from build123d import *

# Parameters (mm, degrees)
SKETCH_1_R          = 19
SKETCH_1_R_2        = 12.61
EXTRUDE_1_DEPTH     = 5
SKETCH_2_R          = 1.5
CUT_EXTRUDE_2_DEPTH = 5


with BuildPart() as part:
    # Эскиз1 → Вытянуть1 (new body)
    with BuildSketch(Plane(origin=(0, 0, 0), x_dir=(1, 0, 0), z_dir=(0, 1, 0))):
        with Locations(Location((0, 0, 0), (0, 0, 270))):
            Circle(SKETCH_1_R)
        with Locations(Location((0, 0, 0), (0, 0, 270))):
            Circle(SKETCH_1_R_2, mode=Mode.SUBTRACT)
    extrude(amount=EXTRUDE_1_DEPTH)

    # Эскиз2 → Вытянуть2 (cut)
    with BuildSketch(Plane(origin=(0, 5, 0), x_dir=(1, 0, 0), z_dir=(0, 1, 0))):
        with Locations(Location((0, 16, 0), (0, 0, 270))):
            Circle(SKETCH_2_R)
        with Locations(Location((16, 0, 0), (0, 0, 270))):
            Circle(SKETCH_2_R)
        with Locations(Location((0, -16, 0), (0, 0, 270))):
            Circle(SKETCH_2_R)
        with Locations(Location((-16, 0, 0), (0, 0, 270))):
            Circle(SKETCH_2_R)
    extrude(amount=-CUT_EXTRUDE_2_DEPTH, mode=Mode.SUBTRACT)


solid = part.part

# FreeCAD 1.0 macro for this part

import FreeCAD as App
import Part
import Sketcher

V = App.Vector
Q = App.Units.Quantity

doc = App.newDocument("Part")
body = doc.addObject("PartDesign::Body", "Body")

# Sketch on XZ plane
sketch1 = body.newObject("Sketcher::SketchObject", "Sketch")
sketch1.AttachmentSupport = (doc.getObject("XZ_Plane"), [""])
sketch1.MapMode = "FlatFace"
sketch1.addGeometry([
    Part.Circle(V(0, 0, 0), V(0, 0, 1), 19),
    Part.Circle(V(0, 0, 0), V(0, 0, 1), 12.61),
], False)
sketch1.addConstraint([
    Sketcher.Constraint("Coincident", 0, 3, -1, 1),
    Sketcher.Constraint("Coincident", 1, 3, -1, 1),
    Sketcher.Constraint("Diameter", 0, Q("38 mm")),
    Sketcher.Constraint("Diameter", 1, Q("25.22 mm")),
])
pad1 = body.newObject("PartDesign::Pad", "Pad")
pad1.Profile = sketch1
pad1.Length = 5
pad1.Reversed = True

# Sketch on XZ plane
sketch2 = body.newObject("Sketcher::SketchObject", "Sketch001")
sketch2.AttachmentSupport = (doc.getObject("XZ_Plane"), [""])
sketch2.MapMode = "FlatFace"
sketch2.AttachmentOffset = App.Placement(V(0, 0, -5), App.Rotation())
sketch2.addGeometry([
    Part.Circle(V(0, -16, 0), V(0, 0, 1), 1.5),
    Part.Circle(V(16, 0, 0), V(0, 0, 1), 1.5),
    Part.Circle(V(0, 16, 0), V(0, 0, 1), 1.5),
    Part.Circle(V(-16, 0, 0), V(0, 0, 1), 1.5),
], False)
sketch2.addConstraint([
    Sketcher.Constraint("Equal", 0, 1),
    Sketcher.Constraint("Equal", 1, 2),
    Sketcher.Constraint("Equal", 2, 3),
    Sketcher.Constraint("Symmetric", 0, 3, 2, 3, -1, 1),
    Sketcher.Constraint("Symmetric", 1, 3, 3, 3, -1, 1),
    Sketcher.Constraint("PointOnObject", 0, 3, -2),
    Sketcher.Constraint("PointOnObject", 1, 3, -1),
    Sketcher.Constraint("Diameter", 0, Q("3 mm")),
    Sketcher.Constraint("DistanceY", 0, 3, -1, 1, Q("16 mm")),
    Sketcher.Constraint("DistanceX", -1, 1, 1, 3, Q("16 mm")),
])
pocket1 = body.newObject("PartDesign::Pocket", "Pocket")
pocket1.Profile = sketch2
pocket1.Length = 5
pocket1.Reversed = True

doc.recompute()
